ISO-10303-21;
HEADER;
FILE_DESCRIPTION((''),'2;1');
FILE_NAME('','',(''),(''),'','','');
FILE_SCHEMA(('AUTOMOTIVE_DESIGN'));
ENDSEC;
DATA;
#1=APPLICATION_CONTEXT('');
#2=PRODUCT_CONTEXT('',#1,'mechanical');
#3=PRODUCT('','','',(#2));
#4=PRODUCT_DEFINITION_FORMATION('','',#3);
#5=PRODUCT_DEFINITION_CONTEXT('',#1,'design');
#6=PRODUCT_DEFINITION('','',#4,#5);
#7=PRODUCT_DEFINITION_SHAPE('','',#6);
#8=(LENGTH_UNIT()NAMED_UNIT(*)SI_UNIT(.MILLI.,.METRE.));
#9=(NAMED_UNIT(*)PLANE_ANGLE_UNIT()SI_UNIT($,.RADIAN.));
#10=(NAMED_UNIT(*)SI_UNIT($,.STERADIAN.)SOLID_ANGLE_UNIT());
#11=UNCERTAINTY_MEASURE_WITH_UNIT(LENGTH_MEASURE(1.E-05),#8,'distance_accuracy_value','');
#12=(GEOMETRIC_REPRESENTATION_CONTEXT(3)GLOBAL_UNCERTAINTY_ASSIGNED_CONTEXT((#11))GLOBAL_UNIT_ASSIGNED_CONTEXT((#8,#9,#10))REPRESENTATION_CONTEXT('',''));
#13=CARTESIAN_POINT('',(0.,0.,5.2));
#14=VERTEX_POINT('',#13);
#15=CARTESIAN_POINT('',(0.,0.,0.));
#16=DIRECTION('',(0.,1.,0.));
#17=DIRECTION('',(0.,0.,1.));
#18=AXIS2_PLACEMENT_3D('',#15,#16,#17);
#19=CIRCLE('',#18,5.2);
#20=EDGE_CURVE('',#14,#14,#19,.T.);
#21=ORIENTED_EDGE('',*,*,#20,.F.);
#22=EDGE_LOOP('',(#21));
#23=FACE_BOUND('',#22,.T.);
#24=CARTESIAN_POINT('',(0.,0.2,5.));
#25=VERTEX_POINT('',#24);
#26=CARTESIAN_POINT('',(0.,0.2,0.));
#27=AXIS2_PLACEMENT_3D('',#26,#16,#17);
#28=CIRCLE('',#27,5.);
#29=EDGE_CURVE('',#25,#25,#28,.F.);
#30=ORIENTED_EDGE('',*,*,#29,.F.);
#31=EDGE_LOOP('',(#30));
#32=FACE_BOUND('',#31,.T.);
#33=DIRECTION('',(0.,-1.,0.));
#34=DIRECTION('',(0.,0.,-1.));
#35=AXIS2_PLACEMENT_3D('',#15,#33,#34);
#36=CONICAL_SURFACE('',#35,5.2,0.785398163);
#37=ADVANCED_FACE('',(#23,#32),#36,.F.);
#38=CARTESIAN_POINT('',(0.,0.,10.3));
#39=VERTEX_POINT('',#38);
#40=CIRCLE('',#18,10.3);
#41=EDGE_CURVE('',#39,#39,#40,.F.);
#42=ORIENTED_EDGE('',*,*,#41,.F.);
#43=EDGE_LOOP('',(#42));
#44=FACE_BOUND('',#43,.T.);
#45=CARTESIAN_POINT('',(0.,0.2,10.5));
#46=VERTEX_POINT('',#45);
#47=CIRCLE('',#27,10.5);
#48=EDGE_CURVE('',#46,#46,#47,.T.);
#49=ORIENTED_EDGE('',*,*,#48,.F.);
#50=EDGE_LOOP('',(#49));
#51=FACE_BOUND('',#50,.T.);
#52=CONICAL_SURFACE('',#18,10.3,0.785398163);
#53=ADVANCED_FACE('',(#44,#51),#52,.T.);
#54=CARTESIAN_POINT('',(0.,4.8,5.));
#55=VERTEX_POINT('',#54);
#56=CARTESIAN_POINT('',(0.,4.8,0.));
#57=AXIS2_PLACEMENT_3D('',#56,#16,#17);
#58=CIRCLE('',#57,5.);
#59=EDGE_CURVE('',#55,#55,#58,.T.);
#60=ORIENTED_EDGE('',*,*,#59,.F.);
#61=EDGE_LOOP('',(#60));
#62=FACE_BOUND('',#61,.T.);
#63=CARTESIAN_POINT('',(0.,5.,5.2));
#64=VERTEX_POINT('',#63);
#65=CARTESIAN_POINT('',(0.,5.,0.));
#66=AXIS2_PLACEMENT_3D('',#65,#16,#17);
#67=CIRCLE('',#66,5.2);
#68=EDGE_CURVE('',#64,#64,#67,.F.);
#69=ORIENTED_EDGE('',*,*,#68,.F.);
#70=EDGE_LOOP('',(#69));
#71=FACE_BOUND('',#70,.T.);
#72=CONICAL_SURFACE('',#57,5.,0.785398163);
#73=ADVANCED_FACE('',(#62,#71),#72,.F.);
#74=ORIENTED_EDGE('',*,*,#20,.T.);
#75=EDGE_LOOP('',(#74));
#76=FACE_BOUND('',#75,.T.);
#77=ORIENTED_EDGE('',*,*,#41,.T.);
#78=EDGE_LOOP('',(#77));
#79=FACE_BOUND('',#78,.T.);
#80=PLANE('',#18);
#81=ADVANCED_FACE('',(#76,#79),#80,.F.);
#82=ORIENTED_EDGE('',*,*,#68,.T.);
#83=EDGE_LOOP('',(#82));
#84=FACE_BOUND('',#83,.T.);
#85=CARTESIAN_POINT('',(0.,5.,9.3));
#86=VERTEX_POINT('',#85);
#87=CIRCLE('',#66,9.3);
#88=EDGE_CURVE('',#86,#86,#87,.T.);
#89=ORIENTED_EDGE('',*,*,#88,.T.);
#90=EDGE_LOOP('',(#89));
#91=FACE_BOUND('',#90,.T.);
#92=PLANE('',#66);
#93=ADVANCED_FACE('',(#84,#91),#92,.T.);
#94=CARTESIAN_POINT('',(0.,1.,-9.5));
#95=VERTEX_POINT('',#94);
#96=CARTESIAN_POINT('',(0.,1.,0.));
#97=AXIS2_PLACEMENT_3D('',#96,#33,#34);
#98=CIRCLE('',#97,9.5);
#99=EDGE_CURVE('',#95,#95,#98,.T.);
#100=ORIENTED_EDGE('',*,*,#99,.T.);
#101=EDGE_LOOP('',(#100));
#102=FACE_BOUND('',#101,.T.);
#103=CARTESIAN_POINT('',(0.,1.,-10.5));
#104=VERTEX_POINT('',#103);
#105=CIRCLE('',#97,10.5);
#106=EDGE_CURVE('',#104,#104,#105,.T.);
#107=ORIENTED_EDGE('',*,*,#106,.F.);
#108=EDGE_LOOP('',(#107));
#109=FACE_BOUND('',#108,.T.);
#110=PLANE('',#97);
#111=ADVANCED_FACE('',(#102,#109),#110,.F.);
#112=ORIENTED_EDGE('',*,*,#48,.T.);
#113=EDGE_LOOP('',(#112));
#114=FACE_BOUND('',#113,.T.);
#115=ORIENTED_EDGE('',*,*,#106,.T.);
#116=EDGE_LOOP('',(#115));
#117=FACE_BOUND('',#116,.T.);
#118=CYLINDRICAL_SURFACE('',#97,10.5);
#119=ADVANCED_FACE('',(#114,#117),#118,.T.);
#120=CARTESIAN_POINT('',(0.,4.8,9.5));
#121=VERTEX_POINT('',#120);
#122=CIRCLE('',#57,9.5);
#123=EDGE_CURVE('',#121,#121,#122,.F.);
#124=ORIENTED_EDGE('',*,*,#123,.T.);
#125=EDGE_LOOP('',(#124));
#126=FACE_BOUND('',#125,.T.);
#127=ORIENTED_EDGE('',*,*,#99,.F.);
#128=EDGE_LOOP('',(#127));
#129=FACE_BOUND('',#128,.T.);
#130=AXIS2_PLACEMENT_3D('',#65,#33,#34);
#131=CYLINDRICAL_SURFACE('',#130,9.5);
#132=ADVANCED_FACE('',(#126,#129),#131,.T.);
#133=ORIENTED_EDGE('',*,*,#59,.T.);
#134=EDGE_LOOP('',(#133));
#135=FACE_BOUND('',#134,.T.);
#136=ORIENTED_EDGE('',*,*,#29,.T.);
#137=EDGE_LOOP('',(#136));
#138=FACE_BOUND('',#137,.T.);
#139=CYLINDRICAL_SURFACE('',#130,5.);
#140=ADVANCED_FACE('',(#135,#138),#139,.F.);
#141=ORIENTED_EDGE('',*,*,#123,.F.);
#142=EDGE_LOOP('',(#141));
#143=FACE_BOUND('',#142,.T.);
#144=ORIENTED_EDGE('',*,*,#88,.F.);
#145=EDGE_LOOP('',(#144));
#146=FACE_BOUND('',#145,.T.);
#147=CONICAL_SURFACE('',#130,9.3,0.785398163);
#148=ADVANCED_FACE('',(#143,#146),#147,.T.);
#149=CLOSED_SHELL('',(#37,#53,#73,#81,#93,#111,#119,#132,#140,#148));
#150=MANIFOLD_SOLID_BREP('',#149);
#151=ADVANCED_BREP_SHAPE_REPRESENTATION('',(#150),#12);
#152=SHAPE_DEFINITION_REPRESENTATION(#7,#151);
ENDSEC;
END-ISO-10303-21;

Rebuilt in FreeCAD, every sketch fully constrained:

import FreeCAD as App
import Part
import Sketcher
from FreeCAD import Vector
Q = App.Units.Quantity


def edges_at(feature, points):
    """Names of the edges that pass closest to the given points."""
    edges = feature.Shape.Edges
    near = lambda p: min(range(len(edges)), key=lambda i: edges[i].distToShape(Part.Vertex(*p))[0])
    return sorted({f"Edge{near(p) + 1}" for p in points})

doc = App.newDocument("Part")
params = doc.addObject("Spreadsheet::Sheet", "Params")
for row, (alias, value) in enumerate([
    ("sketch1_diameter", "19 mm"),
    ("sketch1_diameter2", "10 mm"),
    ("pad1_length", "5 mm"),
    ("sketch2_diameter", "21 mm"),
    ("sketch2_diameter2", "19 mm"),
    ("pad2_length", "1 mm"),
    ("chamfer_size", "0.2 mm"),
], start=1):
    params.set(f"A{row}", alias)
    params.set(f"B{row}", "=" + value)
    params.setAlias(f"B{row}", alias)

body = doc.addObject("PartDesign::Body", "Body")

# Sketch on XZ plane
sketch1 = doc.addObject("Sketcher::SketchObject", "Sketch")
body.addObject(sketch1)
sketch1.AttachmentSupport = (doc.XZ_Plane, [""])
sketch1.MapMode = "FlatFace"
sketch1.addGeometry(Part.Circle(Vector(0, 0, 0), Vector(0, 0, 1), 10), False)
sketch1.addGeometry(Part.Circle(Vector(0, 0, 0), Vector(0, 0, 1), 5), False)
sketch1.addConstraint(Sketcher.Constraint("Coincident", 0, 3, -1, 1))
sketch1.addConstraint(Sketcher.Constraint("Coincident", 1, 3, -1, 1))
sketch1.addConstraint(Sketcher.Constraint("Diameter", 0, Q("19 mm")))
sketch1.addConstraint(Sketcher.Constraint("Diameter", 1, Q("10 mm")))
sketch1.setExpression("Constraints[2]", "Params.sketch1_diameter")
sketch1.setExpression("Constraints[3]", "Params.sketch1_diameter2")
pad1 = doc.addObject("PartDesign::Pad", "Pad")
body.addObject(pad1)
pad1.Profile = sketch1
pad1.setExpression("Length", "Params.pad1_length")
pad1.Reversed = True

# Sketch on XZ plane
sketch2 = doc.addObject("Sketcher::SketchObject", "Sketch001")
body.addObject(sketch2)
sketch2.AttachmentSupport = (doc.XZ_Plane, [""])
sketch2.MapMode = "FlatFace"
sketch2.addGeometry(Part.Circle(Vector(0, 0, 0), Vector(0, 0, 1), 10), False)
sketch2.addGeometry(Part.Circle(Vector(0, 0, 0), Vector(0, 0, 1), 10), False)
sketch2.addConstraint(Sketcher.Constraint("Coincident", 0, 3, -1, 1))
sketch2.addConstraint(Sketcher.Constraint("Coincident", 1, 3, -1, 1))
sketch2.addConstraint(Sketcher.Constraint("Diameter", 0, Q("21 mm")))
sketch2.addConstraint(Sketcher.Constraint("Diameter", 1, Q("19 mm")))
sketch2.setExpression("Constraints[2]", "Params.sketch2_diameter")
sketch2.setExpression("Constraints[3]", "Params.sketch2_diameter2")
pad2 = doc.addObject("PartDesign::Pad", "Pad001")
body.addObject(pad2)
pad2.Profile = sketch2
pad2.setExpression("Length", "Params.pad2_length")
pad2.Reversed = True
doc.recompute()

chamfer = doc.addObject("PartDesign::Chamfer", "Chamfer")
body.addObject(chamfer)
chamfer.Base = (pad2, edges_at(pad2, [
    (0, 0, 10.5),
    (0, 5, -9.5),
    (0, 0, -5),
    (0, 5, -5),
]))
chamfer.setExpression("Size", "Params.chamfer_size")

doc.recompute()
